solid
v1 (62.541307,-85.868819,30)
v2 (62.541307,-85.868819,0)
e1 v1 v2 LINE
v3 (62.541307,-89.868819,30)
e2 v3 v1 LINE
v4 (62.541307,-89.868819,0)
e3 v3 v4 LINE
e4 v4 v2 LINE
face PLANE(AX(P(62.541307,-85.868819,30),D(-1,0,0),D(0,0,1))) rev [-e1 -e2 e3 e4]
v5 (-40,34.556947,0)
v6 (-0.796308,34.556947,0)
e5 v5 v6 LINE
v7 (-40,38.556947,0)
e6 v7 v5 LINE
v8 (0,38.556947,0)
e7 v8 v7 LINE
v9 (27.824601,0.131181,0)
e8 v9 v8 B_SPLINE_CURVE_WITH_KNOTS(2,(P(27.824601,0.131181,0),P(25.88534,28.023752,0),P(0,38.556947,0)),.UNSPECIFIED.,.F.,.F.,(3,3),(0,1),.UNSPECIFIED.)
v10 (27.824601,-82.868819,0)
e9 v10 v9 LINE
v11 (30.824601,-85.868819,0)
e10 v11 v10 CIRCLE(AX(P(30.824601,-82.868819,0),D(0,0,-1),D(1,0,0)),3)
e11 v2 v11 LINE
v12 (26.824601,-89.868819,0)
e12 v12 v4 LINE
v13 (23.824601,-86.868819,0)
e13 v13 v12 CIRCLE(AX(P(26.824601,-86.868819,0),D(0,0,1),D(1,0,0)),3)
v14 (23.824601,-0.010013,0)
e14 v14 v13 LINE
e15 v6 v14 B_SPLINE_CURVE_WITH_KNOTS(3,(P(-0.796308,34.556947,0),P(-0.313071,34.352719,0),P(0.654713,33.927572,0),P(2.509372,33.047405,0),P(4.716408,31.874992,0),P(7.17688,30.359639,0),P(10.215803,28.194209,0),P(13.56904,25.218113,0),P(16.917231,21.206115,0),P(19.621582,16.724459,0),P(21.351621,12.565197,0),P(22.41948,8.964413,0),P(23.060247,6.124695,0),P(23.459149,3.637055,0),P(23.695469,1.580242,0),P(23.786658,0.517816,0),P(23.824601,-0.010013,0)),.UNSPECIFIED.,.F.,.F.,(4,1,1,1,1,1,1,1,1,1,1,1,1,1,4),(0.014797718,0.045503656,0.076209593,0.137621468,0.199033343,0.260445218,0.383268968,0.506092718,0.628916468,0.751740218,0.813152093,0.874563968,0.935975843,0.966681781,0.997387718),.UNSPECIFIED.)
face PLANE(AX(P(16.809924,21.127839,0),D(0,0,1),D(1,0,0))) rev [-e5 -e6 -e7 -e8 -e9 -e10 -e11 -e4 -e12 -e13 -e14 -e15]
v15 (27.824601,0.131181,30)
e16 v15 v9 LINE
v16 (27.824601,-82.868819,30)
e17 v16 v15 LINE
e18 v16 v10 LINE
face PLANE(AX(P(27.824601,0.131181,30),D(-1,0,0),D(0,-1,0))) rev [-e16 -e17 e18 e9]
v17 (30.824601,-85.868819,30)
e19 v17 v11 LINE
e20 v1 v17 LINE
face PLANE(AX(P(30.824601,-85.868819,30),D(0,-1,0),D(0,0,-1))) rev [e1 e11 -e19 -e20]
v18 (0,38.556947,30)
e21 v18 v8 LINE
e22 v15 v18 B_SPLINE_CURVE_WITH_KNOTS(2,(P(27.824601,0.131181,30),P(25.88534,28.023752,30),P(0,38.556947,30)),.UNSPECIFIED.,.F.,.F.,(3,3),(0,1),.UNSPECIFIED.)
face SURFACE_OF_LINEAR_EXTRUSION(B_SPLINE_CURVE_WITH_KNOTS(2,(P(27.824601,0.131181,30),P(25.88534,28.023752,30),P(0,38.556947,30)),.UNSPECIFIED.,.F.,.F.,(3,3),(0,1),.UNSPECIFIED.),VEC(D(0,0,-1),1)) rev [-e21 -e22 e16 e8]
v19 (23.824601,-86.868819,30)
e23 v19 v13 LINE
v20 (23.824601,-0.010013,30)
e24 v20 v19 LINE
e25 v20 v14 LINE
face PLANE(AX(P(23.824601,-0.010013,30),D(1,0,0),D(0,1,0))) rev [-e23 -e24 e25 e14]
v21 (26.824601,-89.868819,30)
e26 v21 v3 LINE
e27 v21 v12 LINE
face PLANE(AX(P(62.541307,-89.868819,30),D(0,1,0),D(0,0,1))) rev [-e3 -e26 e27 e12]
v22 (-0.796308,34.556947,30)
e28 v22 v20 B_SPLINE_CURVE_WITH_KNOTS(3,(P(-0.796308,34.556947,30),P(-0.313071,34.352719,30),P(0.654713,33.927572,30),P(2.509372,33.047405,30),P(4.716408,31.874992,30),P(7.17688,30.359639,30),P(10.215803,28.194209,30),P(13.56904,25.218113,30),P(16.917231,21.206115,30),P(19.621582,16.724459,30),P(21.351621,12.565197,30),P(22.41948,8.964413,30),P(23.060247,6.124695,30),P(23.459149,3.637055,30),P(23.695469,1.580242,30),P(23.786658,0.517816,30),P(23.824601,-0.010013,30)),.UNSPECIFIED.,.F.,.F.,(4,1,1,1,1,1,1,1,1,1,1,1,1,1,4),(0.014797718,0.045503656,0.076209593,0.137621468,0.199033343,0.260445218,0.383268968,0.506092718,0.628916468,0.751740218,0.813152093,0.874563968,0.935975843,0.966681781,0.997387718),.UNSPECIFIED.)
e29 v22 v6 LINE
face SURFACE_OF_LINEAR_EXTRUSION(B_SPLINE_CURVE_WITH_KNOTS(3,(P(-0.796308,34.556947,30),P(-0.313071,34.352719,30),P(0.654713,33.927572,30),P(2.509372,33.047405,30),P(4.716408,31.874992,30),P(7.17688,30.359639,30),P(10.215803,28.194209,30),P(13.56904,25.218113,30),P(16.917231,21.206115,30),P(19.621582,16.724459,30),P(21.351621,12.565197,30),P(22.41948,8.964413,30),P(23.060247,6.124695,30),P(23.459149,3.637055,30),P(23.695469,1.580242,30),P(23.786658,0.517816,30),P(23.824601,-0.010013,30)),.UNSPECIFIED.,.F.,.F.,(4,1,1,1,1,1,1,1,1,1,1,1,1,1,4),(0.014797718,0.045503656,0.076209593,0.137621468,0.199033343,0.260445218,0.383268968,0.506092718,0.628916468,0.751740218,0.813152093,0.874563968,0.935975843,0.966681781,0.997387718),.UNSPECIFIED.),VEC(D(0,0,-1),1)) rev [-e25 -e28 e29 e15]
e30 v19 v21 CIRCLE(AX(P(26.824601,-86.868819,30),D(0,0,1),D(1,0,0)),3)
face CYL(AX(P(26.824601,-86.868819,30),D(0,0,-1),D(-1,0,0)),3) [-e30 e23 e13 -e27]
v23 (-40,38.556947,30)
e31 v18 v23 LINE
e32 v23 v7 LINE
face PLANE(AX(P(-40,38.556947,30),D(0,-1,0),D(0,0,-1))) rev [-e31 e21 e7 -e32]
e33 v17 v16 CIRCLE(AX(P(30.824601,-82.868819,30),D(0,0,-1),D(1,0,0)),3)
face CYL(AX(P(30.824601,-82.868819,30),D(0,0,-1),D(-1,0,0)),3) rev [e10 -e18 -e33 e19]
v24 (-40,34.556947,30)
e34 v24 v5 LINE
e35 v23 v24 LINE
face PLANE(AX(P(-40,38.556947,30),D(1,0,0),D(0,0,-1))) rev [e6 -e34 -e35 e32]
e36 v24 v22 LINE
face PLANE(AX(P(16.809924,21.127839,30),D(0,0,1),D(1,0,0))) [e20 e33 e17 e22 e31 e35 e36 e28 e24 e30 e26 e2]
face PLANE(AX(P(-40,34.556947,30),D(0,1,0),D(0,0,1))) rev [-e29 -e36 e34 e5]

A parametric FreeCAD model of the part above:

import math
import FreeCAD as App
import Part
import Sketcher
from FreeCAD import Vector
Q = App.Units.Quantity

doc = App.newDocument("Part")
body = doc.addObject("PartDesign::Body", "Body")

sketch1 = body.newObject("Sketcher::SketchObject", "Sketch")
sketch1.AttachmentSupport = (doc.getObject("XY_Plane"), [""])
sketch1.MapMode = "FlatFace"
sketch1.addGeometry([
    Part.LineSegment(Vector(0, 38.556947, 0), Vector(-40, 38.556947, 0)),
    Part.LineSegment(Vector(-40, 38.556947, 0), Vector(-40, 34.556947, 0)),
    Part.LineSegment(Vector(-40, 34.556947, 0), Vector(-0.796308, 34.556947, 0)),
    Part.BSplineCurve([Vector(-0.796308, 34.556947, 0), Vector(-0.313071, 34.352719, 0), Vector(0.654713, 33.927572, 0), Vector(2.509372, 33.047405, 0), Vector(4.716408, 31.874992, 0), Vector(7.17688, 30.359639, 0), Vector(10.215803, 28.194209, 0), Vector(13.56904, 25.218113, 0), Vector(16.917231, 21.206115, 0), Vector(19.621582, 16.724459, 0), Vector(21.351621, 12.565197, 0), Vector(22.41948, 8.964413, 0), Vector(23.060247, 6.124695, 0), Vector(23.459149, 3.637055, 0), Vector(23.695469, 1.580242, 0), Vector(23.786658, 0.517816, 0), Vector(23.824601, -0.010013, 0)], [4, 1, 1, 1, 1, 1, 1, 1, 1, 1, 1, 1, 1, 1, 4], [0.014797718, 0.045503656, 0.076209593, 0.137621468, 0.199033343, 0.260445218, 0.383268968, 0.506092718, 0.628916468, 0.751740218, 0.813152093, 0.874563968, 0.935975843, 0.966681781, 0.997387718], False, 3, [1, 1, 1, 1, 1, 1, 1, 1, 1, 1, 1, 1, 1, 1, 1, 1, 1], False),
    Part.LineSegment(Vector(23.824601, -0.010013, 0), Vector(23.824601, -86.868819, 0)),
    Part.ArcOfCircle(Part.Circle(Vector(26.824601, -86.868819, 0), Vector(0, 0, 1), 3), math.radians(180), math.radians(270)),
    Part.LineSegment(Vector(26.824601, -89.868819, 0), Vector(62.541307, -89.868819, 0)),
    Part.LineSegment(Vector(62.541307, -89.868819, 0), Vector(62.541307, -85.868819, 0)),
    Part.LineSegment(Vector(62.541307, -85.868819, 0), Vector(30.824601, -85.868819, 0)),
    Part.ArcOfCircle(Part.Circle(Vector(30.824601, -82.868819, 0), Vector(0, 0, 1), 3), math.radians(180), math.radians(270)),
    Part.LineSegment(Vector(27.824601, -82.868819, 0), Vector(27.824601, 0.131181, 0)),
    Part.BSplineCurve([Vector(0, 38.556947, 0), Vector(25.88534, 28.023752, 0), Vector(27.824601, 0.131181, 0)], [3, 3], [0, 1], False, 2, [1, 1, 1], False),
], False)
sketch1.addConstraint([
    Sketcher.Constraint("Block", 3),
    Sketcher.Constraint("Block", 11),
    Sketcher.Constraint("Coincident", 0, 2, 1, 1),
    Sketcher.Constraint("Coincident", 1, 2, 2, 1),
    Sketcher.Constraint("Coincident", 2, 2, 3, 1),
    Sketcher.Constraint("Coincident", 3, 2, 4, 1),
    Sketcher.Constraint("Tangent", 4, 2, 5, 1),
    Sketcher.Constraint("Tangent", 5, 2, 6, 1),
    Sketcher.Constraint("Coincident", 6, 2, 7, 1),
    Sketcher.Constraint("Coincident", 7, 2, 8, 1),
    Sketcher.Constraint("Tangent", 8, 2, 9, 2),
    Sketcher.Constraint("Tangent", 9, 1, 10, 1),
    Sketcher.Constraint("Coincident", 10, 2, 11, 2),
    Sketcher.Constraint("Coincident", 11, 1, 0, 1),
    Sketcher.Constraint("Horizontal", 0),
    Sketcher.Constraint("Vertical", 1),
    Sketcher.Constraint("Horizontal", 2),
    Sketcher.Constraint("Vertical", 4),
    Sketcher.Constraint("Horizontal", 6),
    Sketcher.Constraint("Vertical", 7),
    Sketcher.Constraint("Horizontal", 8),
    Sketcher.Constraint("Vertical", 10),
    Sketcher.Constraint("Equal", 5, 9),
    Sketcher.Constraint("Equal", 1, 7),
    Sketcher.Constraint("Radius", 5, Q("3 mm")),
    Sketcher.Constraint("DistanceX", 0, 2, 0, 1, Q("40 mm")),
    Sketcher.Constraint("DistanceY", 10, 1, 10, 2, Q("83 mm")),
    Sketcher.Constraint("DistanceX", 6, 1, 6, 2, Q("35.716706 mm")),
])
pad1 = body.newObject("PartDesign::Pad", "Pad")
pad1.Profile = sketch1
pad1.Length = 30

doc.recompute()
